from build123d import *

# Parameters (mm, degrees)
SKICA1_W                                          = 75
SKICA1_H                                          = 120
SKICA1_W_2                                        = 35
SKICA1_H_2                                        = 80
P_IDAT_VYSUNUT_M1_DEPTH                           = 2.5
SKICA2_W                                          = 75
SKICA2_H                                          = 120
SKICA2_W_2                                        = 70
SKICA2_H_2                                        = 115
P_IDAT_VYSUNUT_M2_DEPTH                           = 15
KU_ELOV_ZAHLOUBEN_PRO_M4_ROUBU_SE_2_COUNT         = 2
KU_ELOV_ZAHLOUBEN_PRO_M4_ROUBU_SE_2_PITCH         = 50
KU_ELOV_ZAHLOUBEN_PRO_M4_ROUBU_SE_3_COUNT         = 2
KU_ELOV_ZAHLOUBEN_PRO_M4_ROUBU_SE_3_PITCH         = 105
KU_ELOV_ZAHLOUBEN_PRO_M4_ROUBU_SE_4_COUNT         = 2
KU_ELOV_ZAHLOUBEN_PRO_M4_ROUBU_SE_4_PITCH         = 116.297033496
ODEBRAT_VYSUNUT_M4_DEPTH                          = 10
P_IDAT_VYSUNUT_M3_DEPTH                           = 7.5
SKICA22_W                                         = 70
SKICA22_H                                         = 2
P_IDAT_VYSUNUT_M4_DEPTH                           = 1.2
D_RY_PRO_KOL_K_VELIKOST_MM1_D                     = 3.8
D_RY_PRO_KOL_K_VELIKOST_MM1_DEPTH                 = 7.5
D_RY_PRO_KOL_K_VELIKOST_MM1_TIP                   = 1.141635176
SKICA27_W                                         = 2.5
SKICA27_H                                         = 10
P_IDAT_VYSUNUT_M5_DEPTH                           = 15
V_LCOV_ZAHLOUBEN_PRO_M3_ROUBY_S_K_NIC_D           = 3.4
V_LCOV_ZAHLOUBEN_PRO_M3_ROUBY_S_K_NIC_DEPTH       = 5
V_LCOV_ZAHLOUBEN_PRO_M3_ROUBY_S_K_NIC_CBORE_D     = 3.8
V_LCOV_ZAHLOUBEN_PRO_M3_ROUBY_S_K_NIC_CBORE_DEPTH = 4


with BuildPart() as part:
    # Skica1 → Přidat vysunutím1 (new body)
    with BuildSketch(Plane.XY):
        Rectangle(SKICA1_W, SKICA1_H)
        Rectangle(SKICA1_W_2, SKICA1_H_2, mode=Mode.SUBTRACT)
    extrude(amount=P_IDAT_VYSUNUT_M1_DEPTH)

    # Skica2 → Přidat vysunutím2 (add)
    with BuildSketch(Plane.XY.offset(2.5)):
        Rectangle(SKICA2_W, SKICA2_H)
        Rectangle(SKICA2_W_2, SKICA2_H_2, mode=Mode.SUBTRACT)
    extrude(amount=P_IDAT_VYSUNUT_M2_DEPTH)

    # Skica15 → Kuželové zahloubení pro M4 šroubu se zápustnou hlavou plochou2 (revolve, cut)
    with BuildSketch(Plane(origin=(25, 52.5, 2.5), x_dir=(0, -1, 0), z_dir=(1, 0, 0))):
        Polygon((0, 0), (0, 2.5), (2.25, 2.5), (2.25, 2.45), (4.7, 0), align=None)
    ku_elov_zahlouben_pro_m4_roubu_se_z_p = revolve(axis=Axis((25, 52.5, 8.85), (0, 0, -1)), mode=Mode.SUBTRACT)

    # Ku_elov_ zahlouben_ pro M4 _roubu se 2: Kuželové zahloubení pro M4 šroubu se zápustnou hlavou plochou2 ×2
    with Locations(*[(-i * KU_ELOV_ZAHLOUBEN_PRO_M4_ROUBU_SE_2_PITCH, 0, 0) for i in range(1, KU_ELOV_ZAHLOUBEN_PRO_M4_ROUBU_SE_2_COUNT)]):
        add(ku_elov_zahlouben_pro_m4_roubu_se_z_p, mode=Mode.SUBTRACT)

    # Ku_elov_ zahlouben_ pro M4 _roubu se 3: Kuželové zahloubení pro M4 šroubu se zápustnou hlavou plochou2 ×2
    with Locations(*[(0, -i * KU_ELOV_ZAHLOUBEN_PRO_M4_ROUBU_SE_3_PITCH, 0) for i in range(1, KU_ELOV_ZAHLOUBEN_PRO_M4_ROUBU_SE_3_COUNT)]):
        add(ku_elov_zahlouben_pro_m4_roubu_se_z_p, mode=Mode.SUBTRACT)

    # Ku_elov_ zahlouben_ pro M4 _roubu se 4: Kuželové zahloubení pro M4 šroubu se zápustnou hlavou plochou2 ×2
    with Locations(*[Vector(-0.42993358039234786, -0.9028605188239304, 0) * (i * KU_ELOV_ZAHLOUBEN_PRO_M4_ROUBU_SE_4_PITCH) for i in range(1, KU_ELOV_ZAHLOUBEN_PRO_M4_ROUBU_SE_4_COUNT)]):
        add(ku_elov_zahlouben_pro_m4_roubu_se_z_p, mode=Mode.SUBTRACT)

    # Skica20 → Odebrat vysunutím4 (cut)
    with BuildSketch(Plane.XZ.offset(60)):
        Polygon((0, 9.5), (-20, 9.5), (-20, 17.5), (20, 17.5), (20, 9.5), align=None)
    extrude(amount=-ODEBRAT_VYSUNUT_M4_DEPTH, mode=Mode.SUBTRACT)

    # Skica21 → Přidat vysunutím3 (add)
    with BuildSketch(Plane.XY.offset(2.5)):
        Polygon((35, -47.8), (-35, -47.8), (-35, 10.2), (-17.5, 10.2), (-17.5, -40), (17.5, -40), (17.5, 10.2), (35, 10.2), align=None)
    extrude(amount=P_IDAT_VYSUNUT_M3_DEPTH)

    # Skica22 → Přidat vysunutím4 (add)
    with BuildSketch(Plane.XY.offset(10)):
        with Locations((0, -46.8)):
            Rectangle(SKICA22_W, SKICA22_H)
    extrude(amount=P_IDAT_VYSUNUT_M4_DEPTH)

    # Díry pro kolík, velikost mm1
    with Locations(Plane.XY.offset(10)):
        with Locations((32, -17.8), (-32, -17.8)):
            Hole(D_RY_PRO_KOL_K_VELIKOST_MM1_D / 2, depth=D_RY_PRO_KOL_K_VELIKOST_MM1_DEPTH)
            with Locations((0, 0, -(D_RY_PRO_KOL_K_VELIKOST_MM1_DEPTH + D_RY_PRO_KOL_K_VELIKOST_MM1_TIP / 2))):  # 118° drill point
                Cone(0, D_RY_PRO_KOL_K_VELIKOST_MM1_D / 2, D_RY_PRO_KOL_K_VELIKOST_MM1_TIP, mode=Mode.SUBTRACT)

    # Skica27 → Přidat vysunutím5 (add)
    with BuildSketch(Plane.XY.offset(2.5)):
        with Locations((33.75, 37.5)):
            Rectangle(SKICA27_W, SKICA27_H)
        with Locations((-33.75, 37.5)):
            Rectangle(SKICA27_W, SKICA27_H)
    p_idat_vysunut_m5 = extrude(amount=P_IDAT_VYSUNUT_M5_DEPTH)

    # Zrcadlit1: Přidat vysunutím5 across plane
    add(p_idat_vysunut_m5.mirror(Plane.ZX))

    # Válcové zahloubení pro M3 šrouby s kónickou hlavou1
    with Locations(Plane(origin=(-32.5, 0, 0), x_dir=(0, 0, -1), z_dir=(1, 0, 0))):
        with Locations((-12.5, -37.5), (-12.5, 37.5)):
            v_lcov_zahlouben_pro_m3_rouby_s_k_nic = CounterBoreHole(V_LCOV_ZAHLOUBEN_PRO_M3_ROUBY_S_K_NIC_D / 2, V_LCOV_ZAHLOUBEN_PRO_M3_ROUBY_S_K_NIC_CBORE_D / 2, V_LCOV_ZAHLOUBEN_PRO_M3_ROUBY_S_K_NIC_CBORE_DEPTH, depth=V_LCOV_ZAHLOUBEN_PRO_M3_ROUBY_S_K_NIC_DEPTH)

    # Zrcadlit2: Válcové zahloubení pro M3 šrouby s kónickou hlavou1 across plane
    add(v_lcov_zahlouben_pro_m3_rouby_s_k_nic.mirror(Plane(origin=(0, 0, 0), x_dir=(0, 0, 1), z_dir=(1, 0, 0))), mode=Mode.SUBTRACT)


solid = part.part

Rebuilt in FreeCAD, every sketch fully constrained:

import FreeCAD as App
import Part
import Sketcher

V = App.Vector
Q = App.Units.Quantity


def add_polygon(sketch, points):
    """Adds a closed chain of lines whose ends are joined by coincident constraints."""
    first, n = sketch.GeometryCount, len(points)
    for a, b in zip(points, points[1:] + points[:1]):
        sketch.addGeometry(Part.LineSegment(App.Vector(*a, 0), App.Vector(*b, 0)), False)
    for i in range(n):
        sketch.addConstraint(Sketcher.Constraint("Coincident", first + i, 2, first + (i + 1) % n, 1))

doc = App.newDocument("Part")
body = doc.addObject("PartDesign::Body", "Body")

sketch1 = body.newObject("Sketcher::SketchObject", "Sketch")
sketch1.AttachmentSupport = (doc.getObject("XY_Plane"), [""])
sketch1.MapMode = "FlatFace"
add_polygon(sketch1, [(-38, 60), (-38, -60), (38, -60), (38, 60)])
add_polygon(sketch1, [(18, -40), (-18, -40), (-18, 40), (18, 40)])
sketch1.addConstraint(Sketcher.Constraint("Vertical", 0))
sketch1.addConstraint(Sketcher.Constraint("Horizontal", 1))
sketch1.addConstraint(Sketcher.Constraint("Vertical", 2))
sketch1.addConstraint(Sketcher.Constraint("Horizontal", 3))
sketch1.addConstraint(Sketcher.Constraint("Horizontal", 4))
sketch1.addConstraint(Sketcher.Constraint("Vertical", 5))
sketch1.addConstraint(Sketcher.Constraint("Horizontal", 6))
sketch1.addConstraint(Sketcher.Constraint("Vertical", 7))
sketch1.addConstraint(Sketcher.Constraint("Symmetric", 0, 2, 2, 2, -1, 1))
sketch1.addConstraint(Sketcher.Constraint("Symmetric", 4, 2, 6, 2, -1, 1))
sketch1.addConstraint(Sketcher.Constraint("DistanceX", 1, 1, 1, 2, 75.0))
sketch1.addConstraint(Sketcher.Constraint("DistanceX", 4, 2, 4, 1, 35.0))
sketch1.addConstraint(Sketcher.Constraint("DistanceY", 0, 2, 0, 1, 120.0))
sketch1.addConstraint(Sketcher.Constraint("DistanceY", 5, 1, 5, 2, 80.0))
pad1 = body.newObject("PartDesign::Pad", "Pad")
pad1.Profile = sketch1
pad1.Length = 2.5

sketch2 = body.newObject("Sketcher::SketchObject", "Sketch001")
sketch2.AttachmentSupport = (doc.getObject("XY_Plane"), [""])
sketch2.MapMode = "FlatFace"
sketch2.AttachmentOffset = App.Placement(V(0, 0, 2.5), App.Rotation())
add_polygon(sketch2, [(-38, 60), (-38, -60), (38, -60), (38, 60)])
add_polygon(sketch2, [(35, -58), (-35, -58), (-35, 58), (35, 58)])
sketch2.addConstraint(Sketcher.Constraint("Vertical", 0))
sketch2.addConstraint(Sketcher.Constraint("Horizontal", 1))
sketch2.addConstraint(Sketcher.Constraint("Vertical", 2))
sketch2.addConstraint(Sketcher.Constraint("Horizontal", 3))
sketch2.addConstraint(Sketcher.Constraint("Horizontal", 4))
sketch2.addConstraint(Sketcher.Constraint("Vertical", 5))
sketch2.addConstraint(Sketcher.Constraint("Horizontal", 6))
sketch2.addConstraint(Sketcher.Constraint("Vertical", 7))
sketch2.addConstraint(Sketcher.Constraint("Symmetric", 0, 2, 2, 2, -1, 1))
sketch2.addConstraint(Sketcher.Constraint("Symmetric", 4, 2, 6, 2, -1, 1))
sketch2.addConstraint(Sketcher.Constraint("DistanceX", 1, 1, 1, 2, 75.0))
sketch2.addConstraint(Sketcher.Constraint("DistanceX", 4, 2, 4, 1, 70.0))
sketch2.addConstraint(Sketcher.Constraint("DistanceY", 0, 2, 0, 1, 120.0))
sketch2.addConstraint(Sketcher.Constraint("DistanceY", 5, 1, 5, 2, 115.0))
pad2 = body.newObject("PartDesign::Pad", "Pad001")
pad2.Profile = sketch2
pad2.Length = 15

sketch3 = body.newObject("Sketcher::SketchObject", "Sketch002")
sketch3.AttachmentSupport = (doc.getObject("YZ_Plane"), [""])
sketch3.MapMode = "FlatFace"
sketch3.AttachmentOffset = App.Placement(V(0, 0, 25), App.Rotation())
add_polygon(sketch3, [(52.5, 0), (52.5, 2.5), (47.8, 2.5), (50.25, 0.05), (50.25, 0)])
sketch3.addGeometry(Part.LineSegment(V(52.5, 2.5, 0), V(52.5, 0, 0)), True)
sketch3.addConstraint(Sketcher.Constraint("Vertical", 0))
sketch3.addConstraint(Sketcher.Constraint("Horizontal", 1))
sketch3.addConstraint(Sketcher.Constraint("Vertical", 3))
sketch3.addConstraint(Sketcher.Constraint("Horizontal", 4))
sketch3.addConstraint(Sketcher.Constraint("Vertical", 5))
sketch3.addConstraint(Sketcher.Constraint("Coincident", 5, 1, 0, 2))
sketch3.addConstraint(Sketcher.Constraint("PointOnObject", 3, 2, -1))
sketch3.addConstraint(Sketcher.Constraint("PointOnObject", 5, 2, -1))
sketch3.addConstraint(Sketcher.Constraint("Angle", 2, Q("-45 deg")))
sketch3.addConstraint(Sketcher.Constraint("DistanceX", 1, 2, 1, 1, 4.7))
sketch3.addConstraint(Sketcher.Constraint("DistanceY", 0, 1, 0, 2, 2.5))
sketch3.addConstraint(Sketcher.Constraint("DistanceX", 4, 1, 4, 2, 2.25))
sketch3.addConstraint(Sketcher.Constraint("DistanceX", -1, 1, 0, 2, 52.5))
groove = body.newObject("PartDesign::Groove", "Groove")
groove.Profile = sketch3
groove.ReferenceAxis = (sketch3, ["Axis0"])
groove.Angle = 360
doc.recompute()

linearpattern = body.newObject("PartDesign::LinearPattern", "LinearPattern")
linearpattern.Originals = [groove]
linearpattern.Direction = (doc.getObject("X_Axis"), [""])
linearpattern.Mode = "offset"
linearpattern.Offset = 50
linearpattern.Occurrences = 2
linearpattern.Reversed = True
body.Tip = linearpattern
doc.recompute()

linearpattern2 = body.newObject("PartDesign::LinearPattern", "LinearPattern001")
linearpattern2.Originals = [groove]
linearpattern2.Direction = (doc.getObject("Y_Axis"), [""])
linearpattern2.Mode = "offset"
linearpattern2.Offset = 105
linearpattern2.Occurrences = 2
linearpattern2.Reversed = True
body.Tip = linearpattern2
doc.recompute()

datumline = body.newObject("PartDesign::Line", "DatumLine")
datumline.Placement = App.Placement(V(0, 0, 0), App.Rotation(V(0, 0, 1), V(-0.42993358, -0.902860519, 0)))
linearpattern3 = body.newObject("PartDesign::LinearPattern", "LinearPattern002")
linearpattern3.Originals = [groove]
linearpattern3.Direction = (datumline, [""])
linearpattern3.Mode = "offset"
linearpattern3.Offset = 116.297033
linearpattern3.Occurrences = 2
body.Tip = linearpattern3

sketch4 = body.newObject("Sketcher::SketchObject", "Sketch003")
sketch4.AttachmentSupport = (doc.getObject("XZ_Plane"), [""])
sketch4.MapMode = "FlatFace"
sketch4.AttachmentOffset = App.Placement(V(0, 0, 60), App.Rotation())
add_polygon(sketch4, [(-20, 10), (20, 10), (20, 18), (-20, 18)])
sketch4.addConstraint(Sketcher.Constraint("Horizontal", 0))
sketch4.addConstraint(Sketcher.Constraint("Vertical", 1))
sketch4.addConstraint(Sketcher.Constraint("Horizontal", 2))
sketch4.addConstraint(Sketcher.Constraint("Vertical", 3))
sketch4.addConstraint(Sketcher.Constraint("DistanceX", 0, 1, 0, 2, 40.0))
sketch4.addConstraint(Sketcher.Constraint("DistanceY", 1, 1, 1, 2, 8.0))
sketch4.addConstraint(Sketcher.Constraint("DistanceX", -1, 1, 0, 2, 20.0))
sketch4.addConstraint(Sketcher.Constraint("DistanceY", -1, 1, 0, 2, 9.5))
pocket1 = body.newObject("PartDesign::Pocket", "Pocket")
pocket1.Profile = sketch4
pocket1.Length = 10

sketch5 = body.newObject("Sketcher::SketchObject", "Sketch004")
sketch5.AttachmentSupport = (doc.getObject("XY_Plane"), [""])
sketch5.MapMode = "FlatFace"
sketch5.AttachmentOffset = App.Placement(V(0, 0, 2.5), App.Rotation())
add_polygon(sketch5, [(-35, -48), (35, -48), (35, 10), (18, 10), (18, -40), (-18, -40), (-18, 10), (-35, 10)])
sketch5.addConstraint(Sketcher.Constraint("Horizontal", 0))
sketch5.addConstraint(Sketcher.Constraint("Vertical", 1))
sketch5.addConstraint(Sketcher.Constraint("Horizontal", 2))
sketch5.addConstraint(Sketcher.Constraint("Vertical", 3))
sketch5.addConstraint(Sketcher.Constraint("Horizontal", 4))
sketch5.addConstraint(Sketcher.Constraint("Vertical", 5))
sketch5.addConstraint(Sketcher.Constraint("Horizontal", 6))
sketch5.addConstraint(Sketcher.Constraint("Vertical", 7))
sketch5.addConstraint(Sketcher.Constraint("Symmetric", 2, 2, 5, 2, -2))
sketch5.addConstraint(Sketcher.Constraint("Equal", 2, 6))
sketch5.addConstraint(Sketcher.Constraint("DistanceX", 0, 1, 0, 2, 70.0))
sketch5.addConstraint(Sketcher.Constraint("DistanceX", 4, 2, 4, 1, 35.0))
sketch5.addConstraint(Sketcher.Constraint("DistanceY", 1, 1, 1, 2, 58.0))
sketch5.addConstraint(Sketcher.Constraint("DistanceY", 3, 2, 3, 1, 50.2))
sketch5.addConstraint(Sketcher.Constraint("DistanceY", 3, 2, -1, 1, 40.0))
pad3 = body.newObject("PartDesign::Pad", "Pad002")
pad3.Profile = sketch5
pad3.Length = 7.5

sketch6 = body.newObject("Sketcher::SketchObject", "Sketch005")
sketch6.AttachmentSupport = (doc.getObject("XY_Plane"), [""])
sketch6.MapMode = "FlatFace"
sketch6.AttachmentOffset = App.Placement(V(0, 0, 10), App.Rotation())
add_polygon(sketch6, [(-35, -45.8), (-35, -47.8), (35, -47.8), (35, -45.8)])
sketch6.addConstraint(Sketcher.Constraint("Vertical", 0))
sketch6.addConstraint(Sketcher.Constraint("Horizontal", 1))
sketch6.addConstraint(Sketcher.Constraint("Vertical", 2))
sketch6.addConstraint(Sketcher.Constraint("Horizontal", 3))
sketch6.addConstraint(Sketcher.Constraint("DistanceX", 1, 1, 1, 2, 70.0))
sketch6.addConstraint(Sketcher.Constraint("DistanceY", 0, 2, 0, 1, 2.0))
sketch6.addConstraint(Sketcher.Constraint("DistanceX", 0, 2, -1, 1, 35.0))
sketch6.addConstraint(Sketcher.Constraint("DistanceY", 0, 2, -1, 1, 47.8))
pad4 = body.newObject("PartDesign::Pad", "Pad003")
pad4.Profile = sketch6
pad4.Length = 1.2

sketch7 = body.newObject("Sketcher::SketchObject", "Sketch006")
sketch7.AttachmentSupport = (doc.getObject("XY_Plane"), [""])
sketch7.MapMode = "FlatFace"
sketch7.AttachmentOffset = App.Placement(V(0, 0, 10), App.Rotation())
sketch7.addGeometry(Part.Circle(V(32, -17.8, 0), V(0, 0, 1), 1.9), False)
sketch7.addGeometry(Part.Circle(V(-32, -17.8, 0), V(0, 0, 1), 1.9), False)
sketch7.addConstraint(Sketcher.Constraint("Equal", 0, 1))
sketch7.addConstraint(Sketcher.Constraint("Symmetric", 0, 3, 1, 3, -2))
sketch7.addConstraint(Sketcher.Constraint("Diameter", 0, 3.8))
sketch7.addConstraint(Sketcher.Constraint("DistanceX", -1, 1, 0, 3, 32.0))
sketch7.addConstraint(Sketcher.Constraint("DistanceY", 0, 3, -1, 1, 17.8))
doc.recompute()
hole = body.newObject("PartDesign::Hole", "Hole")
hole.Profile = sketch7
hole.ThreadType = "None"
hole.Diameter = 3.8
hole.DepthType = "Dimension"
hole.Depth = 7.5
hole.DrillPoint = "Angled"
hole.DrillPointAngle = 118

sketch8 = body.newObject("Sketcher::SketchObject", "Sketch007")
sketch8.AttachmentSupport = (doc.getObject("XY_Plane"), [""])
sketch8.MapMode = "FlatFace"
sketch8.AttachmentOffset = App.Placement(V(0, 0, 2.5), App.Rotation())
add_polygon(sketch8, [(32.5, 42.5), (32.5, 32.5), (35, 32.5), (35, 42.5)])
add_polygon(sketch8, [(-35, 42.5), (-35, 32.5), (-32.5, 32.5), (-32.5, 42.5)])
sketch8.addConstraint(Sketcher.Constraint("Vertical", 0))
sketch8.addConstraint(Sketcher.Constraint("Horizontal", 1))
sketch8.addConstraint(Sketcher.Constraint("Vertical", 2))
sketch8.addConstraint(Sketcher.Constraint("Horizontal", 3))
sketch8.addConstraint(Sketcher.Constraint("Vertical", 4))
sketch8.addConstraint(Sketcher.Constraint("Horizontal", 5))
sketch8.addConstraint(Sketcher.Constraint("Vertical", 6))
sketch8.addConstraint(Sketcher.Constraint("Horizontal", 7))
sketch8.addConstraint(Sketcher.Constraint("Symmetric", 1, 2, 4, 2, -2))
sketch8.addConstraint(Sketcher.Constraint("Symmetric", 3, 2, 6, 2, -2))
sketch8.addConstraint(Sketcher.Constraint("DistanceY", 0, 2, 0, 1, 10.0))
sketch8.addConstraint(Sketcher.Constraint("DistanceX", 1, 1, 1, 2, 2.5))
sketch8.addConstraint(Sketcher.Constraint("DistanceX", -1, 1, 1, 2, 35.0))
sketch8.addConstraint(Sketcher.Constraint("DistanceY", -1, 1, 0, 2, 32.5))
pad5 = body.newObject("PartDesign::Pad", "Pad004")
pad5.Profile = sketch8
pad5.Length = 15
doc.recompute()

mirrored = body.newObject("PartDesign::Mirrored", "Mirrored")
mirrored.Originals = [pad5]
mirrored.MirrorPlane = (doc.getObject("XZ_Plane"), [""])
body.Tip = mirrored

sketch9 = body.newObject("Sketcher::SketchObject", "Sketch008")
sketch9.AttachmentSupport = (doc.getObject("YZ_Plane"), [""])
sketch9.MapMode = "FlatFace"
sketch9.AttachmentOffset = App.Placement(V(0, 0, -32.5), App.Rotation())
sketch9.addGeometry(Part.Circle(V(-37.5, 12.5, 0), V(0, 0, 1), 1.7), False)
sketch9.addGeometry(Part.Circle(V(37.5, 12.5, 0), V(0, 0, 1), 1.7), False)
sketch9.addConstraint(Sketcher.Constraint("Equal", 0, 1))
sketch9.addConstraint(Sketcher.Constraint("Symmetric", 0, 3, 1, 3, -2))
sketch9.addConstraint(Sketcher.Constraint("Diameter", 0, 3.4))
sketch9.addConstraint(Sketcher.Constraint("DistanceX", 0, 3, 1, 3, 75.0))
sketch9.addConstraint(Sketcher.Constraint("DistanceY", -1, 1, 0, 3, 12.5))
doc.recompute()
hole2 = body.newObject("PartDesign::Hole", "Hole001")
hole2.Profile = sketch9
hole2.ThreadType = "None"
hole2.Diameter = 3.4
hole2.DepthType = "Dimension"
hole2.Depth = 5
hole2.DrillPoint = "Flat"
hole2.HoleCutType = "Counterbore"
hole2.HoleCutDiameter = 3.8
hole2.HoleCutDepth = 4
doc.recompute()

mirrored2 = body.newObject("PartDesign::Mirrored", "Mirrored001")
mirrored2.Originals = [hole2]
mirrored2.MirrorPlane = (doc.getObject("YZ_Plane"), [""])
body.Tip = mirrored2

doc.recompute()
